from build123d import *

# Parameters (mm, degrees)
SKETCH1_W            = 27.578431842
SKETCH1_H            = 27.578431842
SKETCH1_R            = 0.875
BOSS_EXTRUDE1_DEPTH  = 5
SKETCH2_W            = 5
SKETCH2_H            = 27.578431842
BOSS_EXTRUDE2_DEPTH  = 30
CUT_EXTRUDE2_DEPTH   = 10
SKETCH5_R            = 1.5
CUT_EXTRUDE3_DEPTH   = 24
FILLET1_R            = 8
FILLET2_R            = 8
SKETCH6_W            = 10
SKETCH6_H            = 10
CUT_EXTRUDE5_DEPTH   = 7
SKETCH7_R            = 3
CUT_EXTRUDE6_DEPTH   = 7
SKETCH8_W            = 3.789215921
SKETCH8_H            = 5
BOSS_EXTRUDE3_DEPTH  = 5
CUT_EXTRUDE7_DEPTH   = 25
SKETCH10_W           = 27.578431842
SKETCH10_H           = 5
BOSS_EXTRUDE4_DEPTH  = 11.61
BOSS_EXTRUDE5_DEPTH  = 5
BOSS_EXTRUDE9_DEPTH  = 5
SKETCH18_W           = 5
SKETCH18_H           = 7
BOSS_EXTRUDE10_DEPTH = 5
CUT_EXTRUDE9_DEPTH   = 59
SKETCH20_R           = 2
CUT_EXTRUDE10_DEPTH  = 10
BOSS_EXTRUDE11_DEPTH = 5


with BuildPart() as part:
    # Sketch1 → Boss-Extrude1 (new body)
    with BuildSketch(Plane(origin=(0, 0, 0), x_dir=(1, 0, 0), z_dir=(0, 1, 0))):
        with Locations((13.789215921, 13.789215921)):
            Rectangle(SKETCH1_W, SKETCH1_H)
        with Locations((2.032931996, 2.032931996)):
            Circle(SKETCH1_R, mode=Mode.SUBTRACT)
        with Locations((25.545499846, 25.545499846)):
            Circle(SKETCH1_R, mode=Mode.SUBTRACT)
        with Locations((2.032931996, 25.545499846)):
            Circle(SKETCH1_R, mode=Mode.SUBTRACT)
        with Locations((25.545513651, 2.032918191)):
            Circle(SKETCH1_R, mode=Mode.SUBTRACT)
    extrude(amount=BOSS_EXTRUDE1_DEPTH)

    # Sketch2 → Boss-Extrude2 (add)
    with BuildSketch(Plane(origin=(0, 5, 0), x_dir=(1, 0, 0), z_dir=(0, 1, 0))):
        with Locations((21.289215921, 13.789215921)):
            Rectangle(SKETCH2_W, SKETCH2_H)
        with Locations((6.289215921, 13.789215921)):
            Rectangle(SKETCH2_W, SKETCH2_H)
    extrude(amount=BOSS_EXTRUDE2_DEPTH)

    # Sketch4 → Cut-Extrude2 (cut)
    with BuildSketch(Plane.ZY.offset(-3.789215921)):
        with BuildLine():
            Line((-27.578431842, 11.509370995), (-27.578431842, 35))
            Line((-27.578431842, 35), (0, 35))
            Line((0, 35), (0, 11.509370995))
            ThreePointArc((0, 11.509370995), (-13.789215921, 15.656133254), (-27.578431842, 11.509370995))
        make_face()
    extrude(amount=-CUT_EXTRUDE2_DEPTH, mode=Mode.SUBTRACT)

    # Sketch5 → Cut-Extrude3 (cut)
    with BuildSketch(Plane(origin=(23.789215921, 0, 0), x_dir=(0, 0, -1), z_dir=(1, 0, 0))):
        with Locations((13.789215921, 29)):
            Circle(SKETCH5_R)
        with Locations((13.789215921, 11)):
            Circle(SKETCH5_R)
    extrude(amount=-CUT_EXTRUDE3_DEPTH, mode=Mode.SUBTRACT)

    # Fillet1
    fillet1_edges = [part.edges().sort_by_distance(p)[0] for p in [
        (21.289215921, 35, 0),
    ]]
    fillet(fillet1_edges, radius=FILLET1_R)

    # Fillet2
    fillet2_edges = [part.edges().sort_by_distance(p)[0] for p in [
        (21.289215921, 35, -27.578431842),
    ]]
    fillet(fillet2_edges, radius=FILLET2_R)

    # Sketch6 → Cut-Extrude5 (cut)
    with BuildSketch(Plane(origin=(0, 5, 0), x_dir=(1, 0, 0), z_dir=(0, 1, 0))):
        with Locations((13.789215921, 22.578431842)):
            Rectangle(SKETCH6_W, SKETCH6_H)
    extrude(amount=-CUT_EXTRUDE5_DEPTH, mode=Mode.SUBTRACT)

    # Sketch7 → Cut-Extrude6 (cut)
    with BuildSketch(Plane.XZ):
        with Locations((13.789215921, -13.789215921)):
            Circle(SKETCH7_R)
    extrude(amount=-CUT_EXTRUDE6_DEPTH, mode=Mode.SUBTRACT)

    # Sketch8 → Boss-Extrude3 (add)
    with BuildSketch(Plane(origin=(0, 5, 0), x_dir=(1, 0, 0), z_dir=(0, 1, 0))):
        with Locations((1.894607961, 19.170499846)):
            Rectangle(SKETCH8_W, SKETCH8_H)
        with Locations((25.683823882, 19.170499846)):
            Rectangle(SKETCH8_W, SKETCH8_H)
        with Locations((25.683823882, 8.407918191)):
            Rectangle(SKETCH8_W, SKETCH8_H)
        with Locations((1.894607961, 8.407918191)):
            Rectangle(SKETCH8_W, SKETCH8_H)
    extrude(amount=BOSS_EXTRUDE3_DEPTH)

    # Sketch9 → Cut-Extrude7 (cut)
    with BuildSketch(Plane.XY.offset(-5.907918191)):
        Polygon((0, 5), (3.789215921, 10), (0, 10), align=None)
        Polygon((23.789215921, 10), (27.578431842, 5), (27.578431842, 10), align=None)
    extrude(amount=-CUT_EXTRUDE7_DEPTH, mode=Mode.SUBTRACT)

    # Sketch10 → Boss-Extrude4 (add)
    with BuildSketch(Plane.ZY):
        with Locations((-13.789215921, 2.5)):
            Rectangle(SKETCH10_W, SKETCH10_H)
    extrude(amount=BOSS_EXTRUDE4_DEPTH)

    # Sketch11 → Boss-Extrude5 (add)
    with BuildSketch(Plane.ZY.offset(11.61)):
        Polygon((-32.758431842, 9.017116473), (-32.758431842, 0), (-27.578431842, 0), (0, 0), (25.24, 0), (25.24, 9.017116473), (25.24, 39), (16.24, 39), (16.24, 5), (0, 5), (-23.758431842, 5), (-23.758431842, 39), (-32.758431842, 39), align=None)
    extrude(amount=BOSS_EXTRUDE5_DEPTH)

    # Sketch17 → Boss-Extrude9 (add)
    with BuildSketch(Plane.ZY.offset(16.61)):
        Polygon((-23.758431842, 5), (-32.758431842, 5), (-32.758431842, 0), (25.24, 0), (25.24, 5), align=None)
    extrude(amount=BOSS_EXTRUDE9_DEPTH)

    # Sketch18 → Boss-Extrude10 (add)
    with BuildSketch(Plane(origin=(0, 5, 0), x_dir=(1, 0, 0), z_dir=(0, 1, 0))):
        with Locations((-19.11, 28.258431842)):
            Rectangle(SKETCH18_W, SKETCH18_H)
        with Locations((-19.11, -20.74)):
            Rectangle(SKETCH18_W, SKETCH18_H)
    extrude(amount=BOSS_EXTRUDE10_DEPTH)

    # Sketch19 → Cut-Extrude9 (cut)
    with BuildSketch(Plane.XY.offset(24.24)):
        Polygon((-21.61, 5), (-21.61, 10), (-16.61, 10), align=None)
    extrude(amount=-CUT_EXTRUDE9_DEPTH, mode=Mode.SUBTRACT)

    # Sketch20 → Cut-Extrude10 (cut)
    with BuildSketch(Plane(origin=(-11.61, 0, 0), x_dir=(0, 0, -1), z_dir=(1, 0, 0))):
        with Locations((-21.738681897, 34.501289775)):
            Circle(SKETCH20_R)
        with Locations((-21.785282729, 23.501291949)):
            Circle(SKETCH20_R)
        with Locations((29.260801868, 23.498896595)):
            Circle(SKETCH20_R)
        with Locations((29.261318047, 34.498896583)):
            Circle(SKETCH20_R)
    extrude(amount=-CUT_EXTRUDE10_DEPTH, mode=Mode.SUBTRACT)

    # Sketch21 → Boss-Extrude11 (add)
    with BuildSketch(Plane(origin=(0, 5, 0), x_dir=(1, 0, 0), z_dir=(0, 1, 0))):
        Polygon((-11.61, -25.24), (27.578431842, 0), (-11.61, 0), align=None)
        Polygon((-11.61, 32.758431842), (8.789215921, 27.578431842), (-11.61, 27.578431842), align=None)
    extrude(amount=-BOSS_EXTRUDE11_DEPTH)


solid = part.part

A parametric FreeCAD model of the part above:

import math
import FreeCAD as App
import Part
import Sketcher

V = App.Vector
Q = App.Units.Quantity


def edges_at(feature, points):
    """Names of the edges that pass closest to the given points."""
    edges = feature.Shape.Edges
    near = lambda p: min(range(len(edges)), key=lambda i: edges[i].distToShape(Part.Vertex(*p))[0])
    return sorted({f"Edge{near(p) + 1}" for p in points})

doc = App.newDocument("Part")
body = doc.addObject("PartDesign::Body", "Body")

# Sketch on XZ plane
sketch1 = body.newObject("Sketcher::SketchObject", "Sketch")
sketch1.AttachmentSupport = (doc.getObject("XZ_Plane"), [""])
sketch1.MapMode = "FlatFace"
sketch1.addGeometry([
    Part.LineSegment(V(0, -27.6, 0), V(0, 0, 0)),  # 0
    Part.LineSegment(V(0, 0, 0), V(27.6, 0, 0)),  # 1
    Part.LineSegment(V(27.6, 0, 0), V(27.6, -27.6, 0)),  # 2
    Part.LineSegment(V(27.6, -27.6, 0), V(0, -27.6, 0)),  # 3
    Part.Circle(V(2, -2, 0), V(0, 0, 1), 0.9),  # 4
    Part.Circle(V(25.5, -2, 0), V(0, 0, 1), 0.9),  # 5
    Part.Circle(V(2, -25.5, 0), V(0, 0, 1), 0.9),  # 6
    Part.Circle(V(25.5, -25.5, 0), V(0, 0, 1), 0.9),  # 7
], False)
sketch1.addConstraint([
    Sketcher.Constraint("Coincident", 0, 2, 1, 1),
    Sketcher.Constraint("Coincident", 1, 2, 2, 1),
    Sketcher.Constraint("Coincident", 2, 2, 3, 1),
    Sketcher.Constraint("Coincident", 3, 2, 0, 1),
    Sketcher.Constraint("Vertical", 0),
    Sketcher.Constraint("Horizontal", 1),
    Sketcher.Constraint("Vertical", 2),
    Sketcher.Constraint("Horizontal", 3),
    Sketcher.Constraint("Coincident", 0, 2, -1, 1),
    Sketcher.Constraint("Equal", 4, 5),
    Sketcher.Constraint("Equal", 5, 6),
    Sketcher.Constraint("Equal", 6, 7),
    Sketcher.Constraint("Horizontal", 6, 3, 7, 3),
    Sketcher.Constraint("Vertical", 4, 3, 6, 3),
    Sketcher.Constraint("Equal", 3, 0),
    Sketcher.Constraint("Diameter", 4, Q("1.75 mm")),
    Sketcher.Constraint("DistanceX", 1, 1, 1, 2, Q("27.578432 mm")),
    Sketcher.Constraint("DistanceY", 6, 3, -1, 1, Q("25.5455 mm")),
    Sketcher.Constraint("DistanceX", -1, 1, 7, 3, Q("25.5455 mm")),
    Sketcher.Constraint("DistanceX", 4, 3, 1, 2, Q("25.5455 mm")),
    Sketcher.Constraint("DistanceY", 2, 2, 4, 3, Q("25.5455 mm")),
    Sketcher.Constraint("DistanceY", 5, 3, -1, 1, Q("2.032918 mm")),
    Sketcher.Constraint("DistanceX", 4, 3, 5, 3, Q("23.512582 mm")),
])
pad1 = body.newObject("PartDesign::Pad", "Pad")
pad1.Profile = sketch1
pad1.Length = 5
pad1.Reversed = True

# Sketch on XZ plane
sketch2 = body.newObject("Sketcher::SketchObject", "Sketch001")
sketch2.AttachmentSupport = (doc.getObject("XZ_Plane"), [""])
sketch2.MapMode = "FlatFace"
sketch2.AttachmentOffset = App.Placement(V(0, 0, -5), App.Rotation())
sketch2.addGeometry([
    Part.LineSegment(V(19, -28, 0), V(19, 0, 0)),  # 0
    Part.LineSegment(V(19, 0, 0), V(24, 0, 0)),  # 1
    Part.LineSegment(V(24, 0, 0), V(24, -28, 0)),  # 2
    Part.LineSegment(V(24, -28, 0), V(19, -28, 0)),  # 3
    Part.LineSegment(V(4, -28, 0), V(4, 0, 0)),  # 4
    Part.LineSegment(V(4, 0, 0), V(9, 0, 0)),  # 5
    Part.LineSegment(V(9, 0, 0), V(9, -28, 0)),  # 6
    Part.LineSegment(V(9, -28, 0), V(4, -28, 0)),  # 7
], False)
sketch2.addConstraint([
    Sketcher.Constraint("Coincident", 0, 2, 1, 1),
    Sketcher.Constraint("Coincident", 1, 2, 2, 1),
    Sketcher.Constraint("Coincident", 2, 2, 3, 1),
    Sketcher.Constraint("Coincident", 3, 2, 0, 1),
    Sketcher.Constraint("Coincident", 4, 2, 5, 1),
    Sketcher.Constraint("Coincident", 5, 2, 6, 1),
    Sketcher.Constraint("Coincident", 6, 2, 7, 1),
    Sketcher.Constraint("Coincident", 7, 2, 4, 1),
    Sketcher.Constraint("Vertical", 0),
    Sketcher.Constraint("Horizontal", 1),
    Sketcher.Constraint("Vertical", 2),
    Sketcher.Constraint("Horizontal", 3),
    Sketcher.Constraint("Vertical", 4),
    Sketcher.Constraint("Horizontal", 5),
    Sketcher.Constraint("Vertical", 6),
    Sketcher.Constraint("Horizontal", 7),
    Sketcher.Constraint("PointOnObject", 0, 2, -1),
    Sketcher.Constraint("PointOnObject", 4, 2, -1),
    Sketcher.Constraint("Horizontal", 3, 2, 6, 2),
    Sketcher.Constraint("Equal", 3, 5),
    Sketcher.Constraint("DistanceX", 1, 1, 1, 2, Q("5 mm")),
    Sketcher.Constraint("DistanceX", 4, 2, 0, 2, Q("15 mm")),
    Sketcher.Constraint("DistanceY", 0, 1, 0, 2, Q("27.578432 mm")),
    Sketcher.Constraint("DistanceX", -1, 1, 0, 2, Q("18.789216 mm")),
])
pad2 = body.newObject("PartDesign::Pad", "Pad001")
pad2.Profile = sketch2
pad2.Length = 30
pad2.Reversed = True

# Sketch on YZ plane
sketch3 = body.newObject("Sketcher::SketchObject", "Sketch002")
sketch3.AttachmentSupport = (doc.getObject("YZ_Plane"), [""])
sketch3.MapMode = "FlatFace"
sketch3.AttachmentOffset = App.Placement(V(0, 0, 3.789216), App.Rotation())
sketch3.addGeometry([
    Part.LineSegment(V(35, -28, 0), V(12, -28, 0)),
    Part.ArcOfCircle(Part.Circle(V(-9, -14, 0), V(0, 0, 1), 25), math.radians(-33), math.radians(33)),
    Part.LineSegment(V(12, 0, 0), V(35, 0, 0)),
    Part.LineSegment(V(35, 0, 0), V(35, -28, 0)),
], False)
sketch3.addConstraint([
    Sketcher.Constraint("Coincident", 0, 2, 1, 1),
    Sketcher.Constraint("Coincident", 1, 2, 2, 1),
    Sketcher.Constraint("Coincident", 2, 2, 3, 1),
    Sketcher.Constraint("Coincident", 3, 2, 0, 1),
    Sketcher.Constraint("Horizontal", 0),
    Sketcher.Constraint("Horizontal", 2),
    Sketcher.Constraint("Vertical", 3),
    Sketcher.Constraint("PointOnObject", 1, 2, -1),
    Sketcher.Constraint("Vertical", 0, 2, 1, 2),
    Sketcher.Constraint("Radius", 1, Q("25 mm")),
    Sketcher.Constraint("DistanceX", -1, 1, 2, 2, Q("35 mm")),
    Sketcher.Constraint("DistanceX", 0, 2, 0, 1, Q("23.490629 mm")),
    Sketcher.Constraint("DistanceY", 3, 2, 3, 1, Q("27.578432 mm")),
])
pocket1 = body.newObject("PartDesign::Pocket", "Pocket")
pocket1.Profile = sketch3
pocket1.Length = 10
pocket1.Reversed = True

# Sketch on YZ plane
sketch4 = body.newObject("Sketcher::SketchObject", "Sketch003")
sketch4.AttachmentSupport = (doc.getObject("YZ_Plane"), [""])
sketch4.MapMode = "FlatFace"
sketch4.AttachmentOffset = App.Placement(V(0, 0, 23.789216), App.Rotation())
sketch4.addGeometry([
    Part.Circle(V(29, -13.8, 0), V(0, 0, 1), 1.5),
    Part.Circle(V(11, -13.8, 0), V(0, 0, 1), 1.5),
], False)
sketch4.addConstraint([
    Sketcher.Constraint("Equal", 0, 1),
    Sketcher.Constraint("Horizontal", 0, 3, 1, 3),
    Sketcher.Constraint("Diameter", 0, Q("3 mm")),
    Sketcher.Constraint("DistanceX", -1, 1, 0, 3, Q("29 mm")),
    Sketcher.Constraint("DistanceX", -1, 1, 1, 3, Q("11 mm")),
    Sketcher.Constraint("DistanceY", 0, 3, -1, 1, Q("13.789216 mm")),
])
pocket2 = body.newObject("PartDesign::Pocket", "Pocket001")
pocket2.Profile = sketch4
pocket2.Length = 24
doc.recompute()

fillet = body.newObject("PartDesign::Fillet", "Fillet")
fillet.Base = (pocket2, edges_at(pocket2, [(21.289, 35, 0)]))
fillet.Radius = 8
doc.recompute()

fillet2 = body.newObject("PartDesign::Fillet", "Fillet001")
fillet2.Base = (fillet, edges_at(fillet, [(21.289, 35, -27.578)]))
fillet2.Radius = 8

# Sketch on XZ plane
sketch5 = body.newObject("Sketcher::SketchObject", "Sketch004")
sketch5.AttachmentSupport = (doc.getObject("XZ_Plane"), [""])
sketch5.MapMode = "FlatFace"
sketch5.AttachmentOffset = App.Placement(V(0, 0, -5), App.Rotation())
sketch5.addGeometry([
    Part.LineSegment(V(9, -28, 0), V(9, -18, 0)),
    Part.LineSegment(V(9, -18, 0), V(19, -18, 0)),
    Part.LineSegment(V(19, -18, 0), V(19, -28, 0)),
    Part.LineSegment(V(19, -28, 0), V(9, -28, 0)),
], False)
sketch5.addConstraint([
    Sketcher.Constraint("Coincident", 0, 2, 1, 1),
    Sketcher.Constraint("Coincident", 1, 2, 2, 1),
    Sketcher.Constraint("Coincident", 2, 2, 3, 1),
    Sketcher.Constraint("Coincident", 3, 2, 0, 1),
    Sketcher.Constraint("Vertical", 0),
    Sketcher.Constraint("Horizontal", 1),
    Sketcher.Constraint("Vertical", 2),
    Sketcher.Constraint("Horizontal", 3),
    Sketcher.Constraint("Equal", 3, 0),
    Sketcher.Constraint("DistanceX", 1, 1, 1, 2, Q("10 mm")),
    Sketcher.Constraint("DistanceY", 0, 2, -1, 1, Q("17.578432 mm")),
    Sketcher.Constraint("DistanceX", -1, 1, 0, 2, Q("8.789216 mm")),
])
pocket3 = body.newObject("PartDesign::Pocket", "Pocket002")
pocket3.Profile = sketch5
pocket3.Length = 7
pocket3.Reversed = True

# Sketch on XZ plane
sketch6 = body.newObject("Sketcher::SketchObject", "Sketch005")
sketch6.AttachmentSupport = (doc.getObject("XZ_Plane"), [""])
sketch6.MapMode = "FlatFace"
sketch6.addGeometry(Part.Circle(V(13.8, -13.8, 0), V(0, 0, 1), 3), False)
sketch6.addConstraint([
    Sketcher.Constraint("Diameter", 0, Q("6 mm")),
    Sketcher.Constraint("DistanceX", -1, 1, 0, 3, Q("13.789216 mm")),
    Sketcher.Constraint("DistanceY", 0, 3, -1, 1, Q("13.789216 mm")),
])
pocket4 = body.newObject("PartDesign::Pocket", "Pocket003")
pocket4.Profile = sketch6
pocket4.Length = 7

# Sketch on XZ plane
sketch7 = body.newObject("Sketcher::SketchObject", "Sketch006")
sketch7.AttachmentSupport = (doc.getObject("XZ_Plane"), [""])
sketch7.MapMode = "FlatFace"
sketch7.AttachmentOffset = App.Placement(V(0, 0, -5), App.Rotation())
sketch7.addGeometry([
    Part.LineSegment(V(0, -21.7, 0), V(0, -16.7, 0)),  # 0
    Part.LineSegment(V(0, -16.7, 0), V(3.8, -16.7, 0)),  # 1
    Part.LineSegment(V(3.8, -16.7, 0), V(3.8, -21.7, 0)),  # 2
    Part.LineSegment(V(3.8, -21.7, 0), V(0, -21.7, 0)),  # 3
    Part.LineSegment(V(23.8, -21.7, 0), V(23.8, -16.7, 0)),  # 4
    Part.LineSegment(V(23.8, -16.7, 0), V(27.6, -16.7, 0)),  # 5
    Part.LineSegment(V(27.6, -16.7, 0), V(27.6, -21.7, 0)),  # 6
    Part.LineSegment(V(27.6, -21.7, 0), V(23.8, -21.7, 0)),  # 7
    Part.LineSegment(V(23.8, -10.9, 0), V(23.8, -5.9, 0)),  # 8
    Part.LineSegment(V(23.8, -5.9, 0), V(27.6, -5.9, 0)),  # 9
    Part.LineSegment(V(27.6, -5.9, 0), V(27.6, -10.9, 0)),  # 10
    Part.LineSegment(V(27.6, -10.9, 0), V(23.8, -10.9, 0)),  # 11
    Part.LineSegment(V(0, -10.9, 0), V(0, -5.9, 0)),  # 12
    Part.LineSegment(V(0, -5.9, 0), V(3.8, -5.9, 0)),  # 13
    Part.LineSegment(V(3.8, -5.9, 0), V(3.8, -10.9, 0)),  # 14
    Part.LineSegment(V(3.8, -10.9, 0), V(0, -10.9, 0)),  # 15
], False)
sketch7.addConstraint([
    Sketcher.Constraint("Coincident", 0, 2, 1, 1),
    Sketcher.Constraint("Coincident", 1, 2, 2, 1),
    Sketcher.Constraint("Coincident", 2, 2, 3, 1),
    Sketcher.Constraint("Coincident", 3, 2, 0, 1),
    Sketcher.Constraint("Coincident", 4, 2, 5, 1),
    Sketcher.Constraint("Coincident", 5, 2, 6, 1),
    Sketcher.Constraint("Coincident", 6, 2, 7, 1),
    Sketcher.Constraint("Coincident", 7, 2, 4, 1),
    Sketcher.Constraint("Coincident", 8, 2, 9, 1),
    Sketcher.Constraint("Coincident", 9, 2, 10, 1),
    Sketcher.Constraint("Coincident", 10, 2, 11, 1),
    Sketcher.Constraint("Coincident", 11, 2, 8, 1),
    Sketcher.Constraint("Coincident", 12, 2, 13, 1),
    Sketcher.Constraint("Coincident", 13, 2, 14, 1),
    Sketcher.Constraint("Coincident", 14, 2, 15, 1),
    Sketcher.Constraint("Coincident", 15, 2, 12, 1),
    Sketcher.Constraint("Vertical", 0),
    Sketcher.Constraint("Horizontal", 1),
    Sketcher.Constraint("Vertical", 2),
    Sketcher.Constraint("Horizontal", 3),
    Sketcher.Constraint("Vertical", 4),
    Sketcher.Constraint("Horizontal", 5),
    Sketcher.Constraint("Vertical", 6),
    Sketcher.Constraint("Horizontal", 7),
    Sketcher.Constraint("Vertical", 8),
    Sketcher.Constraint("Horizontal", 9),
    Sketcher.Constraint("Vertical", 10),
    Sketcher.Constraint("Horizontal", 11),
    Sketcher.Constraint("Vertical", 12),
    Sketcher.Constraint("Horizontal", 13),
    Sketcher.Constraint("Vertical", 14),
    Sketcher.Constraint("Horizontal", 15),
    Sketcher.Constraint("PointOnObject", 0, 2, -2),
    Sketcher.Constraint("PointOnObject", 12, 2, -2),
    Sketcher.Constraint("Horizontal", 1, 2, 4, 2),
    Sketcher.Constraint("Horizontal", 3, 2, 6, 2),
    Sketcher.Constraint("Horizontal", 9, 2, 12, 2),
    Sketcher.Constraint("Horizontal", 11, 2, 14, 2),
    Sketcher.Constraint("Vertical", 7, 2, 8, 2),
    Sketcher.Constraint("Vertical", 6, 2, 9, 2),
    Sketcher.Constraint("Vertical", 2, 2, 13, 2),
    Sketcher.Constraint("Equal", 3, 5),
    Sketcher.Constraint("Equal", 6, 8),
    Sketcher.Constraint("DistanceY", 0, 1, 0, 2, Q("5 mm")),
    Sketcher.Constraint("DistanceX", 1, 2, 4, 2, Q("20 mm")),
    Sketcher.Constraint("DistanceY", 0, 2, -1, 1, Q("16.6705 mm")),
    Sketcher.Constraint("DistanceX", 1, 1, 1, 2, Q("3.789216 mm")),
    Sketcher.Constraint("DistanceY", 8, 2, -1, 1, Q("5.907918 mm")),
])
pad3 = body.newObject("PartDesign::Pad", "Pad002")
pad3.Profile = sketch7
pad3.Length = 5
pad3.Reversed = True

# Sketch on XY plane
sketch8 = body.newObject("Sketcher::SketchObject", "Sketch007")
sketch8.AttachmentSupport = (doc.getObject("XY_Plane"), [""])
sketch8.MapMode = "FlatFace"
sketch8.AttachmentOffset = App.Placement(V(0, 0, -5.907918), App.Rotation())
sketch8.addGeometry([
    Part.LineSegment(V(0, 5, 0), V(3.8, 10, 0)),  # 0
    Part.LineSegment(V(3.8, 10, 0), V(0, 10, 0)),  # 1
    Part.LineSegment(V(0, 10, 0), V(0, 5, 0)),  # 2
    Part.LineSegment(V(23.8, 10, 0), V(27.6, 5, 0)),  # 3
    Part.LineSegment(V(27.6, 5, 0), V(27.6, 10, 0)),  # 4
    Part.LineSegment(V(27.6, 10, 0), V(23.8, 10, 0)),  # 5
], False)
sketch8.addConstraint([
    Sketcher.Constraint("Coincident", 0, 2, 1, 1),
    Sketcher.Constraint("Coincident", 1, 2, 2, 1),
    Sketcher.Constraint("Coincident", 2, 2, 0, 1),
    Sketcher.Constraint("Coincident", 3, 2, 4, 1),
    Sketcher.Constraint("Coincident", 4, 2, 5, 1),
    Sketcher.Constraint("Coincident", 5, 2, 3, 1),
    Sketcher.Constraint("Horizontal", 1),
    Sketcher.Constraint("Vertical", 2),
    Sketcher.Constraint("Vertical", 4),
    Sketcher.Constraint("Horizontal", 5),
    Sketcher.Constraint("PointOnObject", 1, 2, -2),
    Sketcher.Constraint("Horizontal", 2, 2, 3, 2),
    Sketcher.Constraint("Horizontal", 1, 2, 4, 2),
    Sketcher.Constraint("Equal", 1, 5),
    Sketcher.Constraint("DistanceY", 2, 2, 2, 1, Q("5 mm")),
    Sketcher.Constraint("DistanceY", -1, 1, 0, 2, Q("10 mm")),
    Sketcher.Constraint("DistanceX", 0, 2, 5, 2, Q("20 mm")),
    Sketcher.Constraint("DistanceX", 1, 2, 1, 1, Q("3.789216 mm")),
])
pocket5 = body.newObject("PartDesign::Pocket", "Pocket004")
pocket5.Profile = sketch8
pocket5.Length = 25

# Sketch on YZ plane
sketch9 = body.newObject("Sketcher::SketchObject", "Sketch008")
sketch9.AttachmentSupport = (doc.getObject("YZ_Plane"), [""])
sketch9.MapMode = "FlatFace"
sketch9.addGeometry([
    Part.LineSegment(V(5, -28, 0), V(0, -28, 0)),
    Part.LineSegment(V(0, -28, 0), V(0, 0, 0)),
    Part.LineSegment(V(0, 0, 0), V(5, 0, 0)),
    Part.LineSegment(V(5, 0, 0), V(5, -28, 0)),
], False)
sketch9.addConstraint([
    Sketcher.Constraint("Coincident", 0, 2, 1, 1),
    Sketcher.Constraint("Coincident", 1, 2, 2, 1),
    Sketcher.Constraint("Coincident", 2, 2, 3, 1),
    Sketcher.Constraint("Coincident", 3, 2, 0, 1),
    Sketcher.Constraint("Horizontal", 0),
    Sketcher.Constraint("Vertical", 1),
    Sketcher.Constraint("Horizontal", 2),
    Sketcher.Constraint("Vertical", 3),
    Sketcher.Constraint("Coincident", 1, 2, -1, 1),
    Sketcher.Constraint("DistanceX", 0, 2, 0, 1, Q("5 mm")),
    Sketcher.Constraint("DistanceY", 1, 1, 1, 2, Q("27.578432 mm")),
])
pad4 = body.newObject("PartDesign::Pad", "Pad003")
pad4.Profile = sketch9
pad4.Length = 11.61
pad4.Reversed = True

# Sketch on YZ plane
sketch10 = body.newObject("Sketcher::SketchObject", "Sketch009")
sketch10.AttachmentSupport = (doc.getObject("YZ_Plane"), [""])
sketch10.MapMode = "FlatFace"
sketch10.AttachmentOffset = App.Placement(V(0, 0, -11.61), App.Rotation())
sketch10.addGeometry([
    Part.LineSegment(V(0, -33, 0), V(0, 25, 0)),  # 0
    Part.LineSegment(V(0, 25, 0), V(39, 25, 0)),  # 1
    Part.LineSegment(V(39, 25, 0), V(39, 16, 0)),  # 2
    Part.LineSegment(V(39, 16, 0), V(5, 16, 0)),  # 3
    Part.LineSegment(V(5, 16, 0), V(5, -24, 0)),  # 4
    Part.LineSegment(V(5, -24, 0), V(39, -24, 0)),  # 5
    Part.LineSegment(V(39, -24, 0), V(39, -33, 0)),  # 6
    Part.LineSegment(V(39, -33, 0), V(0, -33, 0)),  # 7
], False)
sketch10.addConstraint([
    Sketcher.Constraint("Coincident", 0, 2, 1, 1),
    Sketcher.Constraint("Coincident", 1, 2, 2, 1),
    Sketcher.Constraint("Coincident", 2, 2, 3, 1),
    Sketcher.Constraint("Coincident", 3, 2, 4, 1),
    Sketcher.Constraint("Coincident", 4, 2, 5, 1),
    Sketcher.Constraint("Coincident", 5, 2, 6, 1),
    Sketcher.Constraint("Coincident", 6, 2, 7, 1),
    Sketcher.Constraint("Coincident", 7, 2, 0, 1),
    Sketcher.Constraint("Vertical", 0),
    Sketcher.Constraint("Horizontal", 1),
    Sketcher.Constraint("Vertical", 2),
    Sketcher.Constraint("Horizontal", 3),
    Sketcher.Constraint("Vertical", 4),
    Sketcher.Constraint("Horizontal", 5),
    Sketcher.Constraint("Vertical", 6),
    Sketcher.Constraint("Horizontal", 7),
    Sketcher.Constraint("PointOnObject", 0, 2, -2),
    Sketcher.Constraint("Vertical", 2, 2, 5, 2),
    Sketcher.Constraint("Equal", 2, 6),
    Sketcher.Constraint("DistanceX", 1, 1, 1, 2, Q("39 mm")),
    Sketcher.Constraint("DistanceX", 3, 2, 3, 1, Q("34 mm")),
    Sketcher.Constraint("DistanceY", 2, 2, 2, 1, Q("9 mm")),
    Sketcher.Constraint("DistanceY", -1, 1, 0, 2, Q("25.24 mm")),
    Sketcher.Constraint("DistanceY", 0, 1, 0, 2, Q("57.998432 mm")),
])
pad5 = body.newObject("PartDesign::Pad", "Pad004")
pad5.Profile = sketch10
pad5.Length = 5
pad5.Reversed = True

# Sketch on YZ plane
sketch11 = body.newObject("Sketcher::SketchObject", "Sketch010")
sketch11.AttachmentSupport = (doc.getObject("YZ_Plane"), [""])
sketch11.MapMode = "FlatFace"
sketch11.AttachmentOffset = App.Placement(V(0, 0, -16.61), App.Rotation())
sketch11.addGeometry([
    Part.LineSegment(V(5, -33, 0), V(0, -33, 0)),
    Part.LineSegment(V(0, -33, 0), V(0, 25, 0)),
    Part.LineSegment(V(0, 25, 0), V(5, 25, 0)),
    Part.LineSegment(V(5, 25, 0), V(5, -33, 0)),
], False)
sketch11.addConstraint([
    Sketcher.Constraint("Coincident", 0, 2, 1, 1),
    Sketcher.Constraint("Coincident", 1, 2, 2, 1),
    Sketcher.Constraint("Coincident", 2, 2, 3, 1),
    Sketcher.Constraint("Coincident", 3, 2, 0, 1),
    Sketcher.Constraint("Horizontal", 0),
    Sketcher.Constraint("Vertical", 1),
    Sketcher.Constraint("Horizontal", 2),
    Sketcher.Constraint("Vertical", 3),
    Sketcher.Constraint("PointOnObject", 0, 2, -2),
    Sketcher.Constraint("DistanceX", 0, 2, 0, 1, Q("5 mm")),
    Sketcher.Constraint("DistanceY", -1, 1, 1, 2, Q("25.24 mm")),
    Sketcher.Constraint("DistanceY", 1, 1, 1, 2, Q("57.998432 mm")),
])
pad6 = body.newObject("PartDesign::Pad", "Pad005")
pad6.Profile = sketch11
pad6.Length = 5
pad6.Reversed = True

# Sketch on XZ plane
sketch12 = body.newObject("Sketcher::SketchObject", "Sketch011")
sketch12.AttachmentSupport = (doc.getObject("XZ_Plane"), [""])
sketch12.MapMode = "FlatFace"
sketch12.AttachmentOffset = App.Placement(V(0, 0, -5), App.Rotation())
sketch12.addGeometry([
    Part.LineSegment(V(-22, -32, 0), V(-22, -25, 0)),  # 0
    Part.LineSegment(V(-22, -25, 0), V(-17, -25, 0)),  # 1
    Part.LineSegment(V(-17, -25, 0), V(-17, -32, 0)),  # 2
    Part.LineSegment(V(-17, -32, 0), V(-22, -32, 0)),  # 3
    Part.LineSegment(V(-22, 17, 0), V(-22, 24, 0)),  # 4
    Part.LineSegment(V(-22, 24, 0), V(-17, 24, 0)),  # 5
    Part.LineSegment(V(-17, 24, 0), V(-17, 17, 0)),  # 6
    Part.LineSegment(V(-17, 17, 0), V(-22, 17, 0)),  # 7
], False)
sketch12.addConstraint([
    Sketcher.Constraint("Coincident", 0, 2, 1, 1),
    Sketcher.Constraint("Coincident", 1, 2, 2, 1),
    Sketcher.Constraint("Coincident", 2, 2, 3, 1),
    Sketcher.Constraint("Coincident", 3, 2, 0, 1),
    Sketcher.Constraint("Coincident", 4, 2, 5, 1),
    Sketcher.Constraint("Coincident", 5, 2, 6, 1),
    Sketcher.Constraint("Coincident", 6, 2, 7, 1),
    Sketcher.Constraint("Coincident", 7, 2, 4, 1),
    Sketcher.Constraint("Vertical", 0),
    Sketcher.Constraint("Horizontal", 1),
    Sketcher.Constraint("Vertical", 2),
    Sketcher.Constraint("Horizontal", 3),
    Sketcher.Constraint("Vertical", 4),
    Sketcher.Constraint("Horizontal", 5),
    Sketcher.Constraint("Vertical", 6),
    Sketcher.Constraint("Horizontal", 7),
    Sketcher.Constraint("Vertical", 3, 2, 4, 2),
    Sketcher.Constraint("Vertical", 2, 2, 5, 2),
    Sketcher.Constraint("Equal", 2, 4),
    Sketcher.Constraint("DistanceX", 1, 1, 1, 2, Q("5 mm")),
    Sketcher.Constraint("DistanceY", 0, 1, 0, 2, Q("7 mm")),
    Sketcher.Constraint("DistanceX", 0, 2, -1, 1, Q("21.61 mm")),
    Sketcher.Constraint("DistanceY", -1, 1, 4, 2, Q("24.24 mm")),
    Sketcher.Constraint("DistanceY", 0, 2, -1, 1, Q("24.758432 mm")),
])
pad7 = body.newObject("PartDesign::Pad", "Pad006")
pad7.Profile = sketch12
pad7.Length = 5
pad7.Reversed = True

# Sketch on XY plane
sketch13 = body.newObject("Sketcher::SketchObject", "Sketch012")
sketch13.AttachmentSupport = (doc.getObject("XY_Plane"), [""])
sketch13.MapMode = "FlatFace"
sketch13.AttachmentOffset = App.Placement(V(0, 0, 24.24), App.Rotation())
sketch13.addGeometry([
    Part.LineSegment(V(-22, 10, 0), V(-22, 5, 0)),
    Part.LineSegment(V(-22, 5, 0), V(-17, 10, 0)),
    Part.LineSegment(V(-17, 10, 0), V(-22, 10, 0)),
], False)
sketch13.addConstraint([
    Sketcher.Constraint("Coincident", 0, 2, 1, 1),
    Sketcher.Constraint("Coincident", 1, 2, 2, 1),
    Sketcher.Constraint("Coincident", 2, 2, 0, 1),
    Sketcher.Constraint("Vertical", 0),
    Sketcher.Constraint("Horizontal", 2),
    Sketcher.Constraint("Equal", 2, 0),
    Sketcher.Constraint("DistanceX", 2, 2, 2, 1, Q("5 mm")),
    Sketcher.Constraint("DistanceY", -1, 1, 0, 2, Q("5 mm")),
    Sketcher.Constraint("DistanceX", 0, 2, -1, 1, Q("21.61 mm")),
])
pocket6 = body.newObject("PartDesign::Pocket", "Pocket005")
pocket6.Profile = sketch13
pocket6.Length = 59

# Sketch on YZ plane
sketch14 = body.newObject("Sketcher::SketchObject", "Sketch013")
sketch14.AttachmentSupport = (doc.getObject("YZ_Plane"), [""])
sketch14.MapMode = "FlatFace"
sketch14.AttachmentOffset = App.Placement(V(0, 0, -11.61), App.Rotation())
sketch14.addGeometry([
    Part.Circle(V(34.5, 21.7, 0), V(0, 0, 1), 2),
    Part.Circle(V(23.5, 21.8, 0), V(0, 0, 1), 2),
    Part.Circle(V(23.5, -29.3, 0), V(0, 0, 1), 2),
    Part.Circle(V(34.5, -29.3, 0), V(0, 0, 1), 2),
], False)
sketch14.addConstraint([
    Sketcher.Constraint("Equal", 0, 1),
    Sketcher.Constraint("Equal", 1, 2),
    Sketcher.Constraint("Equal", 2, 3),
    Sketcher.Constraint("Diameter", 0, Q("4 mm")),
    Sketcher.Constraint("DistanceX", 2, 3, 3, 3, Q("11 mm")),
    Sketcher.Constraint("DistanceY", 3, 3, 0, 3, Q("51 mm")),
    Sketcher.Constraint("DistanceY", 2, 3, -1, 1, Q("29.260802 mm")),
    Sketcher.Constraint("DistanceY", 0, 3, 1, 3, Q("0.046601 mm")),
    Sketcher.Constraint("DistanceX", -1, 1, 0, 3, Q("34.50129 mm")),
    Sketcher.Constraint("DistanceY", -1, 1, 0, 3, Q("21.738682 mm")),
    Sketcher.Constraint("DistanceX", -1, 1, 1, 3, Q("23.501292 mm")),
    Sketcher.Constraint("DistanceX", -1, 1, 2, 3, Q("23.498897 mm")),
])
pocket7 = body.newObject("PartDesign::Pocket", "Pocket006")
pocket7.Profile = sketch14
pocket7.Length = 10

# Sketch on XZ plane
sketch15 = body.newObject("Sketcher::SketchObject", "Sketch014")
sketch15.AttachmentSupport = (doc.getObject("XZ_Plane"), [""])
sketch15.MapMode = "FlatFace"
sketch15.AttachmentOffset = App.Placement(V(0, 0, -5), App.Rotation())
sketch15.addGeometry([
    Part.LineSegment(V(-12, 25, 0), V(28, 0, 0)),  # 0
    Part.LineSegment(V(28, 0, 0), V(-12, 0, 0)),  # 1
    Part.LineSegment(V(-12, 0, 0), V(-12, 25, 0)),  # 2
    Part.LineSegment(V(9, -28, 0), V(-12, -33, 0)),  # 3
    Part.LineSegment(V(-12, -33, 0), V(-12, -28, 0)),  # 4
    Part.LineSegment(V(-12, -28, 0), V(9, -28, 0)),  # 5
], False)
sketch15.addConstraint([
    Sketcher.Constraint("Coincident", 0, 2, 1, 1),
    Sketcher.Constraint("Coincident", 1, 2, 2, 1),
    Sketcher.Constraint("Coincident", 2, 2, 0, 1),
    Sketcher.Constraint("Coincident", 3, 2, 4, 1),
    Sketcher.Constraint("Coincident", 4, 2, 5, 1),
    Sketcher.Constraint("Coincident", 5, 2, 3, 1),
    Sketcher.Constraint("Horizontal", 1),
    Sketcher.Constraint("Vertical", 2),
    Sketcher.Constraint("Vertical", 4),
    Sketcher.Constraint("Horizontal", 5),
    Sketcher.Constraint("PointOnObject", 0, 2, -1),
    Sketcher.Constraint("Vertical", 2, 2, 3, 2),
    Sketcher.Constraint("DistanceY", 2, 1, 2, 2, Q("25.24 mm")),
    Sketcher.Constraint("DistanceY", 4, 1, 4, 2, Q("5.18 mm")),
    Sketcher.Constraint("DistanceX", 1, 2, -1, 1, Q("11.61 mm")),
    Sketcher.Constraint("DistanceX", 1, 2, 1, 1, Q("39.188432 mm")),
    Sketcher.Constraint("DistanceX", 5, 1, 5, 2, Q("20.399216 mm")),
    Sketcher.Constraint("DistanceY", 3, 2, -1, 1, Q("32.758432 mm")),
])
pad8 = body.newObject("PartDesign::Pad", "Pad007")
pad8.Profile = sketch15
pad8.Length = 5

doc.recompute()
